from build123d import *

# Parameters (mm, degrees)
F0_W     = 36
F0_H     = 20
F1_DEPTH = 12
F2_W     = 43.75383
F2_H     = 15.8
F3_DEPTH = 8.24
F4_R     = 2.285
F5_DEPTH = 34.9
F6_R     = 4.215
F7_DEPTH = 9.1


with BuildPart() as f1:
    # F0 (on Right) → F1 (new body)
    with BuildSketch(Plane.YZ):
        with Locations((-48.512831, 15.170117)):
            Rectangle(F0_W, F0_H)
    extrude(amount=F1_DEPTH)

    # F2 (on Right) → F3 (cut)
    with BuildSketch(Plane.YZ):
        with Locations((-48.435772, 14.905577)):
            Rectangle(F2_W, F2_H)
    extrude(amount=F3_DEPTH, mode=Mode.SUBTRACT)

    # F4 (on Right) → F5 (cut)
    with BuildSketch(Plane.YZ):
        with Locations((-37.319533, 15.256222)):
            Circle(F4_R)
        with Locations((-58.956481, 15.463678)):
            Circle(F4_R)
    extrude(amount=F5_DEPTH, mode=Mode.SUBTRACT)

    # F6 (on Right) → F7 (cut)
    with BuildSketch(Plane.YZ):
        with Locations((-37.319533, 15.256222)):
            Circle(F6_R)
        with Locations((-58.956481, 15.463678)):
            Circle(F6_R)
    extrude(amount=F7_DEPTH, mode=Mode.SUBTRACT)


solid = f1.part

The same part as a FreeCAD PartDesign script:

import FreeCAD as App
import Part
import Sketcher

V = App.Vector
Q = App.Units.Quantity


def add_polygon(sketch, points):
    """Adds a closed chain of lines whose ends are joined by coincident constraints."""
    first, n = sketch.GeometryCount, len(points)
    for a, b in zip(points, points[1:] + points[:1]):
        sketch.addGeometry(Part.LineSegment(App.Vector(*a, 0), App.Vector(*b, 0)), False)
    for i in range(n):
        sketch.addConstraint(Sketcher.Constraint("Coincident", first + i, 2, first + (i + 1) % n, 1))

doc = App.newDocument("Part")
body = doc.addObject("PartDesign::Body", "Body")

sketch1 = body.newObject("Sketcher::SketchObject", "Sketch")
sketch1.AttachmentSupport = (doc.getObject("YZ_Plane"), [""])
sketch1.MapMode = "FlatFace"
add_polygon(sketch1, [(-67, 25), (-67, 5), (-31, 5), (-31, 25)])
sketch1.addConstraint([
    Sketcher.Constraint("Vertical", 0),
    Sketcher.Constraint("Horizontal", 1),
    Sketcher.Constraint("Vertical", 2),
    Sketcher.Constraint("Horizontal", 3),
    Sketcher.Constraint("DistanceX", 1, 1, 1, 2, Q("36 mm")),
    Sketcher.Constraint("DistanceY", 0, 2, 0, 1, Q("20 mm")),
    Sketcher.Constraint("DistanceX", 0, 2, -1, 1, Q("66.512831 mm")),
    Sketcher.Constraint("DistanceY", -1, 1, 0, 2, Q("5.170117 mm")),
])
pad1 = body.newObject("PartDesign::Pad", "Pad")
pad1.Profile = sketch1
pad1.Length = 12

sketch2 = body.newObject("Sketcher::SketchObject", "Sketch001")
sketch2.AttachmentSupport = (doc.getObject("YZ_Plane"), [""])
sketch2.MapMode = "FlatFace"
add_polygon(sketch2, [(-70, 23), (-70, 7), (-27, 7), (-27, 23)])
sketch2.addConstraint([
    Sketcher.Constraint("Vertical", 0),
    Sketcher.Constraint("Horizontal", 1),
    Sketcher.Constraint("Vertical", 2),
    Sketcher.Constraint("Horizontal", 3),
    Sketcher.Constraint("DistanceY", 0, 2, 0, 1, Q("15.8 mm")),
    Sketcher.Constraint("DistanceX", 1, 1, 1, 2, Q("43.75383 mm")),
    Sketcher.Constraint("DistanceX", 0, 2, -1, 1, Q("70.312687 mm")),
    Sketcher.Constraint("DistanceY", -1, 1, 0, 2, Q("7.005577 mm")),
])
pocket1 = body.newObject("PartDesign::Pocket", "Pocket")
pocket1.Profile = sketch2
pocket1.Length = 8.24
pocket1.Reversed = True

sketch3 = body.newObject("Sketcher::SketchObject", "Sketch002")
sketch3.AttachmentSupport = (doc.getObject("YZ_Plane"), [""])
sketch3.MapMode = "FlatFace"
sketch3.addGeometry([
    Part.Circle(V(-37.3, 15.3, 0), V(0, 0, 1), 2.3),
    Part.Circle(V(-59, 15.5, 0), V(0, 0, 1), 2.3),
], False)
sketch3.addConstraint([
    Sketcher.Constraint("Equal", 0, 1),
    Sketcher.Constraint("Diameter", 0, Q("4.57 mm")),
    Sketcher.Constraint("DistanceY", -1, 1, 0, 3, Q("15.256222 mm")),
    Sketcher.Constraint("DistanceX", 1, 3, -1, 1, Q("58.956481 mm")),
    Sketcher.Constraint("DistanceX", 0, 3, -1, 1, Q("37.319533 mm")),
    Sketcher.Constraint("DistanceY", -1, 1, 1, 3, Q("15.463678 mm")),
])
pocket2 = body.newObject("PartDesign::Pocket", "Pocket001")
pocket2.Profile = sketch3
pocket2.Length = 34.9
pocket2.Reversed = True

sketch4 = body.newObject("Sketcher::SketchObject", "Sketch003")
sketch4.AttachmentSupport = (doc.getObject("YZ_Plane"), [""])
sketch4.MapMode = "FlatFace"
sketch4.addGeometry([
    Part.Circle(V(-37.3, 15.3, 0), V(0, 0, 1), 4.2),
    Part.Circle(V(-59, 15.5, 0), V(0, 0, 1), 4.2),
], False)
sketch4.addConstraint([
    Sketcher.Constraint("Equal", 0, 1),
    Sketcher.Constraint("Diameter", 0, Q("8.43 mm")),
    Sketcher.Constraint("DistanceY", -1, 1, 0, 3, Q("15.256222 mm")),
    Sketcher.Constraint("DistanceX", 1, 3, -1, 1, Q("58.956481 mm")),
    Sketcher.Constraint("DistanceX", 0, 3, -1, 1, Q("37.319533 mm")),
    Sketcher.Constraint("DistanceY", -1, 1, 1, 3, Q("15.463678 mm")),
])
pocket3 = body.newObject("PartDesign::Pocket", "Pocket002")
pocket3.Profile = sketch4
pocket3.Length = 9.1
pocket3.Reversed = True

doc.recompute()
